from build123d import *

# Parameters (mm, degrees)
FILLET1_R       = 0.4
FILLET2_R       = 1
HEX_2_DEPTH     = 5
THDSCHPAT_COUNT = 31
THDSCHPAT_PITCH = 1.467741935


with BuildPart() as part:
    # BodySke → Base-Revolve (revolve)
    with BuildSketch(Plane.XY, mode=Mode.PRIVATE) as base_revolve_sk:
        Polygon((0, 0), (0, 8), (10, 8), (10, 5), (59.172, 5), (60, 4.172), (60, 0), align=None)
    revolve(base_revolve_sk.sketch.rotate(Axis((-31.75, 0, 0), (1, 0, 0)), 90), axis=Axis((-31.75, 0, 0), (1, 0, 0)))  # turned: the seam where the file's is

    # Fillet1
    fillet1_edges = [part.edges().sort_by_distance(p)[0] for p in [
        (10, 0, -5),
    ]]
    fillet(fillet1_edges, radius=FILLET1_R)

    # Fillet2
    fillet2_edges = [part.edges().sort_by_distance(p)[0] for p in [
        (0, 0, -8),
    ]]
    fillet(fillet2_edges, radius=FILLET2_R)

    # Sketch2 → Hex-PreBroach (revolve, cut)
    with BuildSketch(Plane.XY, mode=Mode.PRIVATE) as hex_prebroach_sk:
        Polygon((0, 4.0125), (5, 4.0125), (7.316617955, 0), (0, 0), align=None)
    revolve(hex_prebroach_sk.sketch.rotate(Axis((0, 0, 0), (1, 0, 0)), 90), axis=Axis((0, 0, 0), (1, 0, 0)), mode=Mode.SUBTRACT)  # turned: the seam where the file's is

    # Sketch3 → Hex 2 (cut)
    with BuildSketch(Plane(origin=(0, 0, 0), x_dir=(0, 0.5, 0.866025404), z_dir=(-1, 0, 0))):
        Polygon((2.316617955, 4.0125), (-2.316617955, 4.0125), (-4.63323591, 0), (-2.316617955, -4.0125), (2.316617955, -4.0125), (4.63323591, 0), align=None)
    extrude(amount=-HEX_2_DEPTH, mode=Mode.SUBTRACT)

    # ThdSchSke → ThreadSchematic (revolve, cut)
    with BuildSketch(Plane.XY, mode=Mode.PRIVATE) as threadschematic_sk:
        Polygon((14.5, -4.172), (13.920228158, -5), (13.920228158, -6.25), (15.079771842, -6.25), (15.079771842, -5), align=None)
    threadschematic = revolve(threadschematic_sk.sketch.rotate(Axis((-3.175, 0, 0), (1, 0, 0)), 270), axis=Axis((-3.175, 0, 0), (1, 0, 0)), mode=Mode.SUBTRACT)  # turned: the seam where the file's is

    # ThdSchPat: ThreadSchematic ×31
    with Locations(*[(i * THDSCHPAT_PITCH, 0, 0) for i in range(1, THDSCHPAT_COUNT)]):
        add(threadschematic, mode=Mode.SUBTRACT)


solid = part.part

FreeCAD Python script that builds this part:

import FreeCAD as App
import Part
import Sketcher

V = App.Vector
Q = App.Units.Quantity


def edges_at(feature, points):
    """Names of the edges that pass closest to the given points."""
    edges = feature.Shape.Edges
    near = lambda p: min(range(len(edges)), key=lambda i: edges[i].distToShape(Part.Vertex(*p))[0])
    return sorted({f"Edge{near(p) + 1}" for p in points})

doc = App.newDocument("Part")
params = doc.addObject("Spreadsheet::Sheet", "Params")
for row, (alias, value) in enumerate([
    ("sketch1_width", "60 mm"),
    ("sketch1_width2", "10 mm"),
    ("sketch1_height", "8 mm"),
    ("sketch1_height2", "3 mm"),
    ("revolution_angle", "360 deg"),
    ("fillet_radius", "0.4 mm"),
    ("fillet2_radius", "1 mm"),
    ("sketch2_width", "5 mm"),
    ("groove_angle", "360 deg"),
    ("pocket1_length", "5 mm"),
    ("sketch4_height", "1.25 mm"),
    ("groove2_angle", "360 deg"),
    ("linearpattern_pitch", "1.467742 mm"),
], start=1):
    params.set(f"A{row}", alias)
    params.set(f"B{row}", "=" + value)
    params.setAlias(f"B{row}", alias)

body = doc.addObject("PartDesign::Body", "Body")

# Sketch on XY plane
sketch1 = doc.addObject("Sketcher::SketchObject", "Sketch")
body.addObject(sketch1)
sketch1.AttachmentSupport = (doc.XY_Plane, [""])
sketch1.MapMode = "FlatFace"
sketch1.addGeometry([
    Part.LineSegment(V(0, 8, 0), V(0, 0, 0)),  # 0
    Part.LineSegment(V(0, 0, 0), V(60, 0, 0)),  # 1
    Part.LineSegment(V(60, 0, 0), V(60, 4.2, 0)),  # 2
    Part.LineSegment(V(60, 4.2, 0), V(59.2, 5, 0)),  # 3
    Part.LineSegment(V(59.2, 5, 0), V(10, 5, 0)),  # 4
    Part.LineSegment(V(10, 5, 0), V(10, 8, 0)),  # 5
    Part.LineSegment(V(10, 8, 0), V(0, 8, 0)),  # 6
], False)
sketch1.addConstraint([
    Sketcher.Constraint("Coincident", 0, 2, 1, 1),
    Sketcher.Constraint("Coincident", 1, 2, 2, 1),
    Sketcher.Constraint("Coincident", 2, 2, 3, 1),
    Sketcher.Constraint("Coincident", 3, 2, 4, 1),
    Sketcher.Constraint("Coincident", 4, 2, 5, 1),
    Sketcher.Constraint("Coincident", 5, 2, 6, 1),
    Sketcher.Constraint("Coincident", 6, 2, 0, 1),
    Sketcher.Constraint("Vertical", 0),
    Sketcher.Constraint("Horizontal", 1),
    Sketcher.Constraint("Vertical", 2),
    Sketcher.Constraint("Horizontal", 4),
    Sketcher.Constraint("Vertical", 5),
    Sketcher.Constraint("Horizontal", 6),
    Sketcher.Constraint("Coincident", 0, 2, -1, 1),
    Sketcher.Constraint("DistanceX", 1, 1, 1, 2, Q("60 mm")),
    Sketcher.Constraint("DistanceX", 6, 2, 6, 1, Q("10 mm")),
    Sketcher.Constraint("DistanceY", 0, 2, 0, 1, Q("8 mm")),
    Sketcher.Constraint("DistanceY", 5, 1, 5, 2, Q("3 mm")),
    Sketcher.Constraint("Angle", 3, Q("135 deg")),
    Sketcher.Constraint("DistanceX", 4, 2, 4, 1, Q("49.172 mm")),
])
sketch1.setExpression("Constraints[14]", "Params.sketch1_width")
sketch1.setExpression("Constraints[15]", "Params.sketch1_width2")
sketch1.setExpression("Constraints[16]", "Params.sketch1_height")
sketch1.setExpression("Constraints[17]", "Params.sketch1_height2")
revolution = doc.addObject("PartDesign::Revolution", "Revolution")
body.addObject(revolution)
revolution.Profile = sketch1
revolution.ReferenceAxis = (sketch1, ["H_Axis"])
revolution.setExpression("Angle", "Params.revolution_angle")
doc.recompute()

fillet = doc.addObject("PartDesign::Fillet", "Fillet")
body.addObject(fillet)
fillet.Base = (revolution, edges_at(revolution, [(10, 0, -5)]))
fillet.setExpression("Radius", "Params.fillet_radius")
doc.recompute()

fillet2 = doc.addObject("PartDesign::Fillet", "Fillet001")
body.addObject(fillet2)
fillet2.Base = (fillet, edges_at(fillet, [(0, 0, -8)]))
fillet2.setExpression("Radius", "Params.fillet2_radius")

# Sketch on XY plane
sketch2 = doc.addObject("Sketcher::SketchObject", "Sketch001")
body.addObject(sketch2)
sketch2.AttachmentSupport = (doc.XY_Plane, [""])
sketch2.MapMode = "FlatFace"
sketch2.addGeometry([
    Part.LineSegment(V(5, 4, 0), V(0, 4, 0)),
    Part.LineSegment(V(0, 4, 0), V(0, 0, 0)),
    Part.LineSegment(V(0, 0, 0), V(7.3, 0, 0)),
    Part.LineSegment(V(7.3, 0, 0), V(5, 4, 0)),
], False)
sketch2.addConstraint([
    Sketcher.Constraint("Coincident", 0, 2, 1, 1),
    Sketcher.Constraint("Coincident", 1, 2, 2, 1),
    Sketcher.Constraint("Coincident", 2, 2, 3, 1),
    Sketcher.Constraint("Coincident", 3, 2, 0, 1),
    Sketcher.Constraint("Horizontal", 0),
    Sketcher.Constraint("Vertical", 1),
    Sketcher.Constraint("Horizontal", 2),
    Sketcher.Constraint("Coincident", 1, 2, -1, 1),
    Sketcher.Constraint("DistanceX", 0, 2, 0, 1, Q("5 mm")),
    Sketcher.Constraint("Angle", 3, Q("120 deg")),
    Sketcher.Constraint("DistanceY", 1, 2, 1, 1, Q("4.0125 mm")),
])
sketch2.setExpression("Constraints[8]", "Params.sketch2_width")
groove = doc.addObject("PartDesign::Groove", "Groove")
body.addObject(groove)
groove.Profile = sketch2
groove.ReferenceAxis = (sketch2, ["H_Axis"])
groove.setExpression("Angle", "Params.groove_angle")

# Sketch on YZ plane
sketch3 = doc.addObject("Sketcher::SketchObject", "Sketch002")
body.addObject(sketch3)
sketch3.AttachmentSupport = (doc.YZ_Plane, [""])
sketch3.MapMode = "FlatFace"
sketch3.addGeometry([
    Part.LineSegment(V(4.6, 0, 0), V(2.3, -4, 0)),  # 0
    Part.LineSegment(V(2.3, -4, 0), V(-2.3, -4, 0)),  # 1
    Part.LineSegment(V(-2.3, -4, 0), V(-4.6, 0, 0)),  # 2
    Part.LineSegment(V(-4.6, 0, 0), V(-2.3, 4, 0)),  # 3
    Part.LineSegment(V(-2.3, 4, 0), V(2.3, 4, 0)),  # 4
    Part.LineSegment(V(2.3, 4, 0), V(4.6, 0, 0)),  # 5
], False)
sketch3.addConstraint([
    Sketcher.Constraint("Coincident", 0, 2, 1, 1),
    Sketcher.Constraint("Coincident", 1, 2, 2, 1),
    Sketcher.Constraint("Coincident", 2, 2, 3, 1),
    Sketcher.Constraint("Coincident", 3, 2, 4, 1),
    Sketcher.Constraint("Coincident", 4, 2, 5, 1),
    Sketcher.Constraint("Coincident", 5, 2, 0, 1),
    Sketcher.Constraint("Horizontal", 1),
    Sketcher.Constraint("Horizontal", 4),
    Sketcher.Constraint("Symmetric", 0, 2, 3, 2, -1, 1),
    Sketcher.Constraint("Symmetric", 2, 2, 5, 2, -1, 1),
    Sketcher.Constraint("PointOnObject", 2, 2, -1),
    Sketcher.Constraint("Parallel", 2, 5),
    Sketcher.Constraint("Vertical", 1, 2, 3, 2),
    Sketcher.Constraint("Angle", 0, Q("-120 deg")),
    Sketcher.Constraint("DistanceY", 1, 2, 3, 2, Q("8.025 mm")),
    Sketcher.Constraint("DistanceX", 1, 2, 1, 1, Q("4.633236 mm")),
])
pocket1 = doc.addObject("PartDesign::Pocket", "Pocket")
body.addObject(pocket1)
pocket1.Profile = sketch3
pocket1.setExpression("Length", "Params.pocket1_length")
pocket1.Reversed = True

# Sketch on XY plane
sketch4 = doc.addObject("Sketcher::SketchObject", "Sketch003")
body.addObject(sketch4)
sketch4.AttachmentSupport = (doc.XY_Plane, [""])
sketch4.MapMode = "FlatFace"
sketch4.addGeometry([
    Part.LineSegment(V(14.5, -4.2, 0), V(13.9, -5, 0)),  # 0
    Part.LineSegment(V(13.9, -5, 0), V(13.9, -6.2, 0)),  # 1
    Part.LineSegment(V(13.9, -6.2, 0), V(15.1, -6.2, 0)),  # 2
    Part.LineSegment(V(15.1, -6.2, 0), V(15.1, -5, 0)),  # 3
    Part.LineSegment(V(15.1, -5, 0), V(14.5, -4.2, 0)),  # 4
], False)
sketch4.addConstraint([
    Sketcher.Constraint("Coincident", 0, 2, 1, 1),
    Sketcher.Constraint("Coincident", 1, 2, 2, 1),
    Sketcher.Constraint("Coincident", 2, 2, 3, 1),
    Sketcher.Constraint("Coincident", 3, 2, 4, 1),
    Sketcher.Constraint("Coincident", 4, 2, 0, 1),
    Sketcher.Constraint("Vertical", 1),
    Sketcher.Constraint("Horizontal", 2),
    Sketcher.Constraint("Vertical", 3),
    Sketcher.Constraint("Horizontal", 0, 2, 3, 2),
    Sketcher.Constraint("Equal", 0, 4),
    Sketcher.Constraint("Angle", 0, Q("-125 deg")),
    Sketcher.Constraint("DistanceY", 0, 2, -1, 1, Q("5 mm")),
    Sketcher.Constraint("DistanceY", 1, 2, 1, 1, Q("1.25 mm")),
    Sketcher.Constraint("DistanceX", -1, 1, 4, 2, Q("14.5 mm")),
    Sketcher.Constraint("DistanceY", 4, 2, -1, 1, Q("4.172 mm")),
])
sketch4.setExpression("Constraints[12]", "Params.sketch4_height")
groove2 = doc.addObject("PartDesign::Groove", "Groove001")
body.addObject(groove2)
groove2.Profile = sketch4
groove2.ReferenceAxis = (sketch4, ["H_Axis"])
groove2.setExpression("Angle", "Params.groove2_angle")
doc.recompute()

linearpattern = doc.addObject("PartDesign::LinearPattern", "LinearPattern")
body.addObject(linearpattern)
linearpattern.Originals = [groove2]
linearpattern.Direction = (doc.X_Axis, [""])
linearpattern.Mode = "offset"
linearpattern.setExpression("Offset", "Params.linearpattern_pitch")
linearpattern.Occurrences = 31
body.Tip = linearpattern

doc.recompute()
